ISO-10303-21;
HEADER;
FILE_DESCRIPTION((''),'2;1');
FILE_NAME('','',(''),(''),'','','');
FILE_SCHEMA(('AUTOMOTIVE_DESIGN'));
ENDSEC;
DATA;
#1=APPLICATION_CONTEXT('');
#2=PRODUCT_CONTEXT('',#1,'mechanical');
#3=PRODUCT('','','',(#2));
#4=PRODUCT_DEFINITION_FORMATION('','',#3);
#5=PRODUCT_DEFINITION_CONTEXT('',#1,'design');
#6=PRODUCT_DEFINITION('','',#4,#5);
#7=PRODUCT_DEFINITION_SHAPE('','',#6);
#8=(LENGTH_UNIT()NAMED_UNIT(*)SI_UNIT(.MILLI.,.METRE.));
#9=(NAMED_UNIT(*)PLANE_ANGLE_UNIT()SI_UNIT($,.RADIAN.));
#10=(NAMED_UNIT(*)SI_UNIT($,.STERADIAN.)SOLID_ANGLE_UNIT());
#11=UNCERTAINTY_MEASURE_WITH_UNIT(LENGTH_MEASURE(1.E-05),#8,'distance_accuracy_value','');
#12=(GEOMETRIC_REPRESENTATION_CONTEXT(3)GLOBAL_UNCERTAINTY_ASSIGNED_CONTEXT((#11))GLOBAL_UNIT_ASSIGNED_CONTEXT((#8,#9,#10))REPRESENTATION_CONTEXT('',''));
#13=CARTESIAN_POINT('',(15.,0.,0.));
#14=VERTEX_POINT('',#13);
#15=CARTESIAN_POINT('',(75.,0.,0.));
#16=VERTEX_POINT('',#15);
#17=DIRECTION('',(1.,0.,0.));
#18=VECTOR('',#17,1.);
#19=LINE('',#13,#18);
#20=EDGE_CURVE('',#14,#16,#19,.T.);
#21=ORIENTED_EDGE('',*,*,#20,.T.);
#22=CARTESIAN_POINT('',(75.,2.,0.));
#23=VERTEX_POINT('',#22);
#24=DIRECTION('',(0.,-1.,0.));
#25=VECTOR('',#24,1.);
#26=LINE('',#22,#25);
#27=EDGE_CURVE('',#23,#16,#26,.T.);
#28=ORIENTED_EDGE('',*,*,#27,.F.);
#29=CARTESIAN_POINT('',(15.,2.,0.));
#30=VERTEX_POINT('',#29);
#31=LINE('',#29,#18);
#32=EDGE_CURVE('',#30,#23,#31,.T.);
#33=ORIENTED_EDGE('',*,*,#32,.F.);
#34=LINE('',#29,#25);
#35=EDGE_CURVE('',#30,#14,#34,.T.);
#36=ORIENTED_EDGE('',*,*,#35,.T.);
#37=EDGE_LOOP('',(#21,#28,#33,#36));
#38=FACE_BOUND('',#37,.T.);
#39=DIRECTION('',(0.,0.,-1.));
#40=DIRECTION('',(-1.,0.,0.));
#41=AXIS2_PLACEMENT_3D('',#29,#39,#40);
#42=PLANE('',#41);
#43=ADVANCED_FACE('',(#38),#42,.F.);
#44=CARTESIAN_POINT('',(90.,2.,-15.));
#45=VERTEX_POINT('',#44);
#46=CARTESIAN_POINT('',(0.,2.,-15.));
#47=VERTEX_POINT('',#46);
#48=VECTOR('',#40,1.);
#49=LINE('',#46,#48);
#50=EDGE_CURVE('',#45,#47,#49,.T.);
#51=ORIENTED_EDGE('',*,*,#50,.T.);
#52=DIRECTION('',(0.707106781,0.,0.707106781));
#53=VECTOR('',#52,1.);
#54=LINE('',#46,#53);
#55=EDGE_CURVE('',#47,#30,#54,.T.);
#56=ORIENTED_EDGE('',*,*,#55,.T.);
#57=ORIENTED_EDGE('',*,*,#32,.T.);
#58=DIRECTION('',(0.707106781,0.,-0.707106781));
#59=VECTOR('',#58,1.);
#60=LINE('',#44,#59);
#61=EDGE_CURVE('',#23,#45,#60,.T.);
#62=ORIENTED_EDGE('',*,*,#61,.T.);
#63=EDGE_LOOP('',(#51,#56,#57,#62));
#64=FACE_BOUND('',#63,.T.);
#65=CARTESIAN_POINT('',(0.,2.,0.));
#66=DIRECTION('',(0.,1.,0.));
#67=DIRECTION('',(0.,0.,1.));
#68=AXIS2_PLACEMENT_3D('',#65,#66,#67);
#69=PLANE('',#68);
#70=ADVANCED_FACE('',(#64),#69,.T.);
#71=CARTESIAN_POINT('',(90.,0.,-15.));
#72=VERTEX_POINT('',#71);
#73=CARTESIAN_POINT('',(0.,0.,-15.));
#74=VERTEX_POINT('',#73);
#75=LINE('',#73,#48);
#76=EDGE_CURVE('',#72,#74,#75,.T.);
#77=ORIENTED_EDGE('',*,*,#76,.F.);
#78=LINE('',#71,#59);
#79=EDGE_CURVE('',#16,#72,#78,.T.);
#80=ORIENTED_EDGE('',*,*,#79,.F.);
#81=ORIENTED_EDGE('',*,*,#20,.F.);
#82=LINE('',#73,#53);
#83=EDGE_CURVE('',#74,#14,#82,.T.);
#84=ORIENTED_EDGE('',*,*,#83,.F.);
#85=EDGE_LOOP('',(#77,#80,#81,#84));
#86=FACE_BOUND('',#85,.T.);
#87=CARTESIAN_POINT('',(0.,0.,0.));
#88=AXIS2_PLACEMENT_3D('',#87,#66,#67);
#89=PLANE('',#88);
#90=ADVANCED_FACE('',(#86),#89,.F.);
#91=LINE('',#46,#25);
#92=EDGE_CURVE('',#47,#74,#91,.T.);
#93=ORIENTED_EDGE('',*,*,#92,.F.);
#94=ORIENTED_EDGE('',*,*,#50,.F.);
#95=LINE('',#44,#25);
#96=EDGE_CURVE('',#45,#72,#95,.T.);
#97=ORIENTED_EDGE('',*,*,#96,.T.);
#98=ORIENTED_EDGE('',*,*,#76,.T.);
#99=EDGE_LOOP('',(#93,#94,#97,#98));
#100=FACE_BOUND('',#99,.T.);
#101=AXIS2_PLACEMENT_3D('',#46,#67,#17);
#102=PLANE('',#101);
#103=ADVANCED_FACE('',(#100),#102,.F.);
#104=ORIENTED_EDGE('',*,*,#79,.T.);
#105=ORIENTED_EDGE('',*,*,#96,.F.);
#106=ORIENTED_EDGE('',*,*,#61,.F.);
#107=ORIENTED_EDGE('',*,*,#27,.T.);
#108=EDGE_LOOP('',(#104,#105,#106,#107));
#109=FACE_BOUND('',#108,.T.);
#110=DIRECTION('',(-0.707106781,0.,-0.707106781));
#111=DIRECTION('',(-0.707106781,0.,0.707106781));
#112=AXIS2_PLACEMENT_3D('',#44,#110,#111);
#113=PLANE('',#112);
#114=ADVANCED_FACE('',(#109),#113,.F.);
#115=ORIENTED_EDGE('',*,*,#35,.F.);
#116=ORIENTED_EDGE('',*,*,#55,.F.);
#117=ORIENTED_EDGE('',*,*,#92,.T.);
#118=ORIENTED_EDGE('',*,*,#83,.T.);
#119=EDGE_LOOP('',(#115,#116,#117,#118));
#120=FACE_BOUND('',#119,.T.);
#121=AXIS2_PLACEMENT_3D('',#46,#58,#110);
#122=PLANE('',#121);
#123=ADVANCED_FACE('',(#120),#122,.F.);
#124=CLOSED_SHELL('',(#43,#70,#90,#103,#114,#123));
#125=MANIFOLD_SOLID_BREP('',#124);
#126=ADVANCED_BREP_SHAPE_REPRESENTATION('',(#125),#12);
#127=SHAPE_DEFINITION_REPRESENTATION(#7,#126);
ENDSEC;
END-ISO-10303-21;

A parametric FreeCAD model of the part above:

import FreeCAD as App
import Part
import Sketcher

V = App.Vector


def add_polygon(sketch, points):
    """Adds a closed chain of lines whose ends are joined by coincident constraints."""
    first, n = sketch.GeometryCount, len(points)
    for a, b in zip(points, points[1:] + points[:1]):
        sketch.addGeometry(Part.LineSegment(App.Vector(*a, 0), App.Vector(*b, 0)), False)
    for i in range(n):
        sketch.addConstraint(Sketcher.Constraint("Coincident", first + i, 2, first + (i + 1) % n, 1))

doc = App.newDocument("Part")
body = doc.addObject("PartDesign::Body", "Body")

# Sketch on XZ plane
sketch1 = body.newObject("Sketcher::SketchObject", "Sketch")
sketch1.AttachmentSupport = (doc.getObject("XZ_Plane"), [""])
sketch1.MapMode = "FlatFace"
add_polygon(sketch1, [(0, -15), (15, 0), (75, 0), (90, -15)])  # lines 0-3
sketch1.addConstraint([
    Sketcher.Constraint("Horizontal", 1),
    Sketcher.Constraint("Horizontal", 3),
    Sketcher.Constraint("PointOnObject", 0, 2, -1),
    Sketcher.Constraint("PointOnObject", 3, 2, -2),
    Sketcher.Constraint("Perpendicular", 0, 2),
    Sketcher.Constraint("Equal", 0, 2),
    Sketcher.Constraint("DistanceX", 1, 1, 1, 2, 60.0),
    Sketcher.Constraint("DistanceX", 3, 2, 3, 1, 90.0),
])
pad1 = body.newObject("PartDesign::Pad", "Pad")
pad1.Profile = sketch1
pad1.Length = 2
pad1.Reversed = True

doc.recompute()
